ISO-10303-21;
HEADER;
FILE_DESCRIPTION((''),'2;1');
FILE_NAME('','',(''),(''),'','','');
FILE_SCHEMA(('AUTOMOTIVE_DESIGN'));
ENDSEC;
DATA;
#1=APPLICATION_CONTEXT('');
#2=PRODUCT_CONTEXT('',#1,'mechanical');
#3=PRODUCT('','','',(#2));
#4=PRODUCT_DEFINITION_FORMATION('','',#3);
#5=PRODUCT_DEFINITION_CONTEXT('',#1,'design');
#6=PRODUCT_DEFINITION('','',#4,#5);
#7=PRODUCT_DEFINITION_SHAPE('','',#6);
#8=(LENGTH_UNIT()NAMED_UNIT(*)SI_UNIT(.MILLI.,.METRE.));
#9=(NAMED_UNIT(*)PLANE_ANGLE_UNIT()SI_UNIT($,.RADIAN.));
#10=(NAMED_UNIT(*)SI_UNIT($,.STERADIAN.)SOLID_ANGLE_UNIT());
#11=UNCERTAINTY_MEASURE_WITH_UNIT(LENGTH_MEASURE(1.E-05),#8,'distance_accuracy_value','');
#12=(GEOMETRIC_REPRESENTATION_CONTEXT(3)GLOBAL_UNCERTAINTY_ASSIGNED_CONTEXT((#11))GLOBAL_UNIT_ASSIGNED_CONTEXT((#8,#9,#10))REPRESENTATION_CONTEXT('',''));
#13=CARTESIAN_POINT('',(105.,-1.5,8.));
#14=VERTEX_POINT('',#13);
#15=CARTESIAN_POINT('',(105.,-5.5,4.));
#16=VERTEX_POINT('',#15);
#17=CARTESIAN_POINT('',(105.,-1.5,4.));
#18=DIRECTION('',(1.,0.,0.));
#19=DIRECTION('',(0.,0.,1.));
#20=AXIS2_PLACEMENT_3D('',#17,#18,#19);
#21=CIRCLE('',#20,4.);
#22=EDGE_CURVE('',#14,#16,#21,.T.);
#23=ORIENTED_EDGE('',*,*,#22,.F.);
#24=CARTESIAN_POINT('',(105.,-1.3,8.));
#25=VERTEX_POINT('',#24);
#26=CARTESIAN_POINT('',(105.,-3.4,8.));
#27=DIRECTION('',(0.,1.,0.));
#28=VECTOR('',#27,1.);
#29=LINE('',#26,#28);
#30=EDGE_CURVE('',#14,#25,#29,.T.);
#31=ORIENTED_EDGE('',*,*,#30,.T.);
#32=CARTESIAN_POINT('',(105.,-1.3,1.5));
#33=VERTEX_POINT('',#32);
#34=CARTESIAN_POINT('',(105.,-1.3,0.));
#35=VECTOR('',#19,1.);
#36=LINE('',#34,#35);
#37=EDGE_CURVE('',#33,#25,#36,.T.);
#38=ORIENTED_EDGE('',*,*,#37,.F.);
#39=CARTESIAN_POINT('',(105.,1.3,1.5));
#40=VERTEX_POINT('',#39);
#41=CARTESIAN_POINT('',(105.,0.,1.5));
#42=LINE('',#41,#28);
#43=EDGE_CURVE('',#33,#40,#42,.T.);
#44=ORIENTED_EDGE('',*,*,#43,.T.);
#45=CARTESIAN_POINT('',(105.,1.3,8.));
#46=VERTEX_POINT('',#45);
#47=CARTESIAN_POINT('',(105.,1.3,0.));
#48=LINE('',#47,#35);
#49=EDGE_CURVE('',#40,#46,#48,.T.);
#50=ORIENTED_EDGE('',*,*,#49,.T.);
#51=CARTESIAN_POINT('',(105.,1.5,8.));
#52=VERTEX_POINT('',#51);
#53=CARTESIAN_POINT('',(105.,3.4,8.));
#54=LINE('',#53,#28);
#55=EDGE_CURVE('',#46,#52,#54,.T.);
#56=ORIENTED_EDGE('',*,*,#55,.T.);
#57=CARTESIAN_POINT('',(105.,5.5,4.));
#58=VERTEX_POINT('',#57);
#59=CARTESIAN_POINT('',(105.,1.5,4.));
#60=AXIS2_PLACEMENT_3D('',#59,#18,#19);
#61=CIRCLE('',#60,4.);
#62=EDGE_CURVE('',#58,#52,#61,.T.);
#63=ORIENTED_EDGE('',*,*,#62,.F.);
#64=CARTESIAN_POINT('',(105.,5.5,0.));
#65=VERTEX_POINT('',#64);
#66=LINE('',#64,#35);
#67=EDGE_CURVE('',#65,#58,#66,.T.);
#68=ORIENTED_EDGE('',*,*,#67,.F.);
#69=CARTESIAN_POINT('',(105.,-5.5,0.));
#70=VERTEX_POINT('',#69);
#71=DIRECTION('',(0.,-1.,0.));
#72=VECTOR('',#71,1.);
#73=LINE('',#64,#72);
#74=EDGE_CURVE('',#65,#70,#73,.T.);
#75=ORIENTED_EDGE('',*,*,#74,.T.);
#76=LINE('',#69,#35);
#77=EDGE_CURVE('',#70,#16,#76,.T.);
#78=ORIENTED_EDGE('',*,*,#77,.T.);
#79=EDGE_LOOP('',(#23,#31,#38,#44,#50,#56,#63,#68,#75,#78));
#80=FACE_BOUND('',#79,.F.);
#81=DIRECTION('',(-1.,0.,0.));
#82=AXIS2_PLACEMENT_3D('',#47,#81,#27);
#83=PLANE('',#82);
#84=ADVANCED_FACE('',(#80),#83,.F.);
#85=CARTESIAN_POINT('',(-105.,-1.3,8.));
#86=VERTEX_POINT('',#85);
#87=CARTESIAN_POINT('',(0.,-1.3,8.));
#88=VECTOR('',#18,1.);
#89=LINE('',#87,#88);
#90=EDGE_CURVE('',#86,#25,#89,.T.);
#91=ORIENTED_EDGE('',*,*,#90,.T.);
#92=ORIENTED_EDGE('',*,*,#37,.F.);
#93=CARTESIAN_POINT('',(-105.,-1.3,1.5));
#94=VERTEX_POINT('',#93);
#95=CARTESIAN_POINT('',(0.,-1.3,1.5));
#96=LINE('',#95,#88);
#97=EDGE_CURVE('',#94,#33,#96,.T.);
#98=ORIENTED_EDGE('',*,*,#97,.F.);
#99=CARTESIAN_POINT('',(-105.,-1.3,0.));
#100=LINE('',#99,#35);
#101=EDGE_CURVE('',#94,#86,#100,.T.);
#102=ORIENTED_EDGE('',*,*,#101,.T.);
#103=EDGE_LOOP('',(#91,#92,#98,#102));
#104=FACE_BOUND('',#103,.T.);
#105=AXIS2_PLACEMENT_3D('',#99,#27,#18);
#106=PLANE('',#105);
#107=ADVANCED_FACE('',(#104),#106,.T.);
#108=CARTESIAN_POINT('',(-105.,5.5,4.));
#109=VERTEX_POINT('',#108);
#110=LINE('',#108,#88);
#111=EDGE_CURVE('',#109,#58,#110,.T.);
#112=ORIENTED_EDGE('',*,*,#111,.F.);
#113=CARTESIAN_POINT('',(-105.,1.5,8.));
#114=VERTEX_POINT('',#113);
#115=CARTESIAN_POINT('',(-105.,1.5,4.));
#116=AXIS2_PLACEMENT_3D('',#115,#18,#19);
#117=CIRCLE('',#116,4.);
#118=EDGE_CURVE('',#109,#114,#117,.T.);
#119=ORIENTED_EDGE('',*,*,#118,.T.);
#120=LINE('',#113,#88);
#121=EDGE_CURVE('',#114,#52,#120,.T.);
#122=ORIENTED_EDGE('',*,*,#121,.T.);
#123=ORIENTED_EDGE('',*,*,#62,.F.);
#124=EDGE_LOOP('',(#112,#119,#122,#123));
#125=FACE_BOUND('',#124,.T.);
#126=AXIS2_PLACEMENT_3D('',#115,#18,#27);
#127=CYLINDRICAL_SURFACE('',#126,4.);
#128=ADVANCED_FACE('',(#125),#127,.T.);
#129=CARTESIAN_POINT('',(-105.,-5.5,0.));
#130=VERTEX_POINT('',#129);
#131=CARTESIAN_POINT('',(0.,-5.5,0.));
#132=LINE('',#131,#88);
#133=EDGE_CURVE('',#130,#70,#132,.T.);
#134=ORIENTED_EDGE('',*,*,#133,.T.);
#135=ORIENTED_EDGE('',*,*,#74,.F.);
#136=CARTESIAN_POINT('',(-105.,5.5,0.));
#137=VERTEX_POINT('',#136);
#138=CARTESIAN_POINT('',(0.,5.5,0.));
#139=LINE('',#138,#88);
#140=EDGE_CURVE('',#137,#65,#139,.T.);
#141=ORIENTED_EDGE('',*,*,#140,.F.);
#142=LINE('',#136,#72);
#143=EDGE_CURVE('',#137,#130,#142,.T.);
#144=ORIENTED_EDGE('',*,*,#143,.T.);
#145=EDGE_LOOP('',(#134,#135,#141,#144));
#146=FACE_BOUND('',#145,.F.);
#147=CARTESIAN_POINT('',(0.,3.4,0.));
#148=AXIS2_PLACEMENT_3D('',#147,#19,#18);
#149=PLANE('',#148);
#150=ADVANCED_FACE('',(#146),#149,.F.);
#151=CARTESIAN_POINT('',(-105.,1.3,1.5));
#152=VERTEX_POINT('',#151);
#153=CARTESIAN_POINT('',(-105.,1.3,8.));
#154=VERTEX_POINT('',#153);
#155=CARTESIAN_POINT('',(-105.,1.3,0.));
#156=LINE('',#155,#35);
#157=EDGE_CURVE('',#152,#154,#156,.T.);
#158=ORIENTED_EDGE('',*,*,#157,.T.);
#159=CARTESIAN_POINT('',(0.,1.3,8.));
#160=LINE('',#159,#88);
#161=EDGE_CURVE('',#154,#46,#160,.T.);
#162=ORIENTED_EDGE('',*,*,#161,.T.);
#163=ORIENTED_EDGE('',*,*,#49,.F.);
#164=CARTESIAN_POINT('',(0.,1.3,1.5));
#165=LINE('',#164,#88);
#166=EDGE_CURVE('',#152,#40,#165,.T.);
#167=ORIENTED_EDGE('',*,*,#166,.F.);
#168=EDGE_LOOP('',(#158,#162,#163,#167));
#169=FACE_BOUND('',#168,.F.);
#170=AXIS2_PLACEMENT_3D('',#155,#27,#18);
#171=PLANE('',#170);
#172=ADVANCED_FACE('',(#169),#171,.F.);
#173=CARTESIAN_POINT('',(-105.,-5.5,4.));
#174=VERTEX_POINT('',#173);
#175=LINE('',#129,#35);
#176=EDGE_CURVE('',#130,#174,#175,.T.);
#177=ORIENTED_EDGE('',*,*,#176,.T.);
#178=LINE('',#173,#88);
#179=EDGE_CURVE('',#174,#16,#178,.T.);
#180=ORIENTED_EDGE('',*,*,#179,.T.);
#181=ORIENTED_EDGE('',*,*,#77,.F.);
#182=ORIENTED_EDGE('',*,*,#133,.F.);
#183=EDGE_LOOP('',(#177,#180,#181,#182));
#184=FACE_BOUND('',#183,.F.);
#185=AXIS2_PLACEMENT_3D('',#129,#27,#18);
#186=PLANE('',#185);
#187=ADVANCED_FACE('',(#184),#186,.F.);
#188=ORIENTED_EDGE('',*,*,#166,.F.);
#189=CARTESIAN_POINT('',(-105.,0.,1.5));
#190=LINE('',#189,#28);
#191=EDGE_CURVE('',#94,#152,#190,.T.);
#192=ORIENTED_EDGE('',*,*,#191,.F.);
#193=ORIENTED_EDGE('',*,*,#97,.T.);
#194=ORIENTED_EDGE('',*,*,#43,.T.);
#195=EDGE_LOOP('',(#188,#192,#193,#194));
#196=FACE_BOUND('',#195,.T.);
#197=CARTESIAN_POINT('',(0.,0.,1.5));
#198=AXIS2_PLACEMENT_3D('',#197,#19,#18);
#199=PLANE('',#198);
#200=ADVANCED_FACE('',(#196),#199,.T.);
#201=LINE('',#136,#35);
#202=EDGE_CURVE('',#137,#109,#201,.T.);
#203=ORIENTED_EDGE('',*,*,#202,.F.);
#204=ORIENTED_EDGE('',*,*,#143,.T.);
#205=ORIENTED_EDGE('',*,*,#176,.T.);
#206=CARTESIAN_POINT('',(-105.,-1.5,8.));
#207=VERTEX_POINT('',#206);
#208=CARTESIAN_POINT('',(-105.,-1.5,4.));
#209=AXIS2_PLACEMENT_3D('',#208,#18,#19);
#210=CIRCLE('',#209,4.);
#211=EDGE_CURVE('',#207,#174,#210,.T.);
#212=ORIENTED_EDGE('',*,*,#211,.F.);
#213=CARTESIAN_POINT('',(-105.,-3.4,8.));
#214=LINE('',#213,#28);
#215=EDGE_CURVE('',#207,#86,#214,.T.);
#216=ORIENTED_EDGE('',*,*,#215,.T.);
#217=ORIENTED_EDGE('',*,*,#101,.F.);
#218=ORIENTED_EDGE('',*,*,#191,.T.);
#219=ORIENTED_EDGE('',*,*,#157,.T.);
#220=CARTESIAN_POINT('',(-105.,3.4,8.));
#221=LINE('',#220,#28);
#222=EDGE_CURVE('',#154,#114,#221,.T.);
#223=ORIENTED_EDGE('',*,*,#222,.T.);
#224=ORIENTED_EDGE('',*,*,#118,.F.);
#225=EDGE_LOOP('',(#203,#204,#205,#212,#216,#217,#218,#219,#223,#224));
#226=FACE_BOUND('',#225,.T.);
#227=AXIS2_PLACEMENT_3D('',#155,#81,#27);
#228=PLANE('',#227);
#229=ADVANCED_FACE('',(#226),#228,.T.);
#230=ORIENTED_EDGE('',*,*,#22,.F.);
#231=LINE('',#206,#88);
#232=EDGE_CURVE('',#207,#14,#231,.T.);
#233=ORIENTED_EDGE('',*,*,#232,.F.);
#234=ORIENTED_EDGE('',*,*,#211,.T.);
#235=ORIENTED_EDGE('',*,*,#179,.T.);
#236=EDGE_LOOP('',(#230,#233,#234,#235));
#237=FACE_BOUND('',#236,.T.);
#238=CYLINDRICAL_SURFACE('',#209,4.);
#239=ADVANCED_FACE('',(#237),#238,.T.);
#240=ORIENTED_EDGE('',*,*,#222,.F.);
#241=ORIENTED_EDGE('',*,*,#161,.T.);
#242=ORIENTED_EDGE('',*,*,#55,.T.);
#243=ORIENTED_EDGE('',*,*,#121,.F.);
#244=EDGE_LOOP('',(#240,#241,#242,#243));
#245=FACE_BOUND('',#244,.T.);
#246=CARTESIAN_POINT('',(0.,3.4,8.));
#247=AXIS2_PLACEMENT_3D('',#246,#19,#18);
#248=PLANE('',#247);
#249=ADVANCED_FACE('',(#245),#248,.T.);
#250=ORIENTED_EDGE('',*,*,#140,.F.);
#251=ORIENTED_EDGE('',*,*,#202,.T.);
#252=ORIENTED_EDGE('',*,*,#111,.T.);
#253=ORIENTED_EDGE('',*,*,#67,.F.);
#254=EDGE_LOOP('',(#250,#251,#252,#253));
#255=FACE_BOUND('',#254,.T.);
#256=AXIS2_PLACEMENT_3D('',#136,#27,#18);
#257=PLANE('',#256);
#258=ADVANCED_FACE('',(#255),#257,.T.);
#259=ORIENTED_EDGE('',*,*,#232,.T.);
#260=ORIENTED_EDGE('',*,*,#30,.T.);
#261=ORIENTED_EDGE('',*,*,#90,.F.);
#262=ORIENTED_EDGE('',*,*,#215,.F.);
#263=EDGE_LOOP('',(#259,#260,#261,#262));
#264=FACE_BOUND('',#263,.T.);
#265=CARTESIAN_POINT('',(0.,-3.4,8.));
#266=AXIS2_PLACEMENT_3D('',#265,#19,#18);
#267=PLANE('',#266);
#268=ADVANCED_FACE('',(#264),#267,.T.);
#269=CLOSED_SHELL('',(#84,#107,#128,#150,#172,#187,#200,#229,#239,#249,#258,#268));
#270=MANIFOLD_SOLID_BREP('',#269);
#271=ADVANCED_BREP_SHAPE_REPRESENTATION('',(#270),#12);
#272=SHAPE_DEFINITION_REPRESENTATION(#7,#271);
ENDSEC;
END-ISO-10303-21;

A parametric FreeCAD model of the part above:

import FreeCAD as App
import Part
import Sketcher
from FreeCAD import Vector
Q = App.Units.Quantity


def edges_at(feature, points):
    """Names of the edges that pass closest to the given points."""
    edges = feature.Shape.Edges
    near = lambda p: min(range(len(edges)), key=lambda i: edges[i].distToShape(Part.Vertex(*p))[0])
    return sorted({f"Edge{near(p) + 1}" for p in points})

doc = App.newDocument("Part")
body = doc.addObject("PartDesign::Body", "Body")

sketch1 = body.newObject("Sketcher::SketchObject", "Sketch")
sketch1.AttachmentSupport = (doc.getObject("XY_Plane"), [""])
sketch1.MapMode = "FlatFace"
sketch1.addGeometry([
    Part.LineSegment(Vector(-105, 1.3, 0), Vector(-105, -1.3, 0)),
    Part.LineSegment(Vector(-105, -1.3, 0), Vector(105, -1.3, 0)),
    Part.LineSegment(Vector(105, -1.3, 0), Vector(105, 1.3, 0)),
    Part.LineSegment(Vector(105, 1.3, 0), Vector(-105, 1.3, 0)),
], False)
sketch1.addConstraint([
    Sketcher.Constraint("Coincident", 0, 2, 1, 1),
    Sketcher.Constraint("Coincident", 1, 2, 2, 1),
    Sketcher.Constraint("Coincident", 2, 2, 3, 1),
    Sketcher.Constraint("Coincident", 3, 2, 0, 1),
    Sketcher.Constraint("Vertical", 0),
    Sketcher.Constraint("Horizontal", 1),
    Sketcher.Constraint("Vertical", 2),
    Sketcher.Constraint("Horizontal", 3),
    Sketcher.Constraint("Symmetric", 0, 2, 2, 2, -1, 1),
    Sketcher.Constraint("DistanceX", 1, 1, 1, 2, Q("210 mm")),
    Sketcher.Constraint("DistanceY", 0, 2, 0, 1, Q("2.6 mm")),
])
pad1 = body.newObject("PartDesign::Pad", "Pad")
pad1.Profile = sketch1
pad1.Length = 1.5

sketch2 = body.newObject("Sketcher::SketchObject", "Sketch001")
sketch2.AttachmentSupport = (doc.getObject("XY_Plane"), [""])
sketch2.MapMode = "FlatFace"
sketch2.addGeometry([
    Part.LineSegment(Vector(-105, 5.5, 0), Vector(-105, 1.3, 0)),
    Part.LineSegment(Vector(-105, 1.3, 0), Vector(105, 1.3, 0)),
    Part.LineSegment(Vector(105, 1.3, 0), Vector(105, 5.5, 0)),
    Part.LineSegment(Vector(105, 5.5, 0), Vector(-105, 5.5, 0)),
    Part.LineSegment(Vector(-105, -1.3, 0), Vector(-105, -5.5, 0)),
    Part.LineSegment(Vector(-105, -5.5, 0), Vector(105, -5.5, 0)),
    Part.LineSegment(Vector(105, -5.5, 0), Vector(105, -1.3, 0)),
    Part.LineSegment(Vector(105, -1.3, 0), Vector(-105, -1.3, 0)),
], False)
sketch2.addConstraint([
    Sketcher.Constraint("Coincident", 0, 2, 1, 1),
    Sketcher.Constraint("Coincident", 1, 2, 2, 1),
    Sketcher.Constraint("Coincident", 2, 2, 3, 1),
    Sketcher.Constraint("Coincident", 3, 2, 0, 1),
    Sketcher.Constraint("Coincident", 4, 2, 5, 1),
    Sketcher.Constraint("Coincident", 5, 2, 6, 1),
    Sketcher.Constraint("Coincident", 6, 2, 7, 1),
    Sketcher.Constraint("Coincident", 7, 2, 4, 1),
    Sketcher.Constraint("Vertical", 0),
    Sketcher.Constraint("Horizontal", 1),
    Sketcher.Constraint("Vertical", 2),
    Sketcher.Constraint("Horizontal", 3),
    Sketcher.Constraint("Vertical", 4),
    Sketcher.Constraint("Horizontal", 5),
    Sketcher.Constraint("Vertical", 6),
    Sketcher.Constraint("Horizontal", 7),
    Sketcher.Constraint("Symmetric", 2, 2, 4, 2, -1, 1),
    Sketcher.Constraint("Symmetric", 0, 2, 6, 2, -1, 1),
    Sketcher.Constraint("Vertical", 3, 2, 4, 2),
    Sketcher.Constraint("DistanceX", 1, 1, 1, 2, Q("210 mm")),
    Sketcher.Constraint("DistanceY", 0, 2, 0, 1, Q("4.2 mm")),
    Sketcher.Constraint("DistanceY", 4, 2, 3, 2, Q("11 mm")),
])
pad2 = body.newObject("PartDesign::Pad", "Pad001")
pad2.Profile = sketch2
pad2.Length = 8
doc.recompute()

fillet = body.newObject("PartDesign::Fillet", "Fillet")
fillet.Base = (pad2, edges_at(pad2, [(0, 5.5, 8), (0, -5.5, 8)]))
fillet.Radius = 4

doc.recompute()
